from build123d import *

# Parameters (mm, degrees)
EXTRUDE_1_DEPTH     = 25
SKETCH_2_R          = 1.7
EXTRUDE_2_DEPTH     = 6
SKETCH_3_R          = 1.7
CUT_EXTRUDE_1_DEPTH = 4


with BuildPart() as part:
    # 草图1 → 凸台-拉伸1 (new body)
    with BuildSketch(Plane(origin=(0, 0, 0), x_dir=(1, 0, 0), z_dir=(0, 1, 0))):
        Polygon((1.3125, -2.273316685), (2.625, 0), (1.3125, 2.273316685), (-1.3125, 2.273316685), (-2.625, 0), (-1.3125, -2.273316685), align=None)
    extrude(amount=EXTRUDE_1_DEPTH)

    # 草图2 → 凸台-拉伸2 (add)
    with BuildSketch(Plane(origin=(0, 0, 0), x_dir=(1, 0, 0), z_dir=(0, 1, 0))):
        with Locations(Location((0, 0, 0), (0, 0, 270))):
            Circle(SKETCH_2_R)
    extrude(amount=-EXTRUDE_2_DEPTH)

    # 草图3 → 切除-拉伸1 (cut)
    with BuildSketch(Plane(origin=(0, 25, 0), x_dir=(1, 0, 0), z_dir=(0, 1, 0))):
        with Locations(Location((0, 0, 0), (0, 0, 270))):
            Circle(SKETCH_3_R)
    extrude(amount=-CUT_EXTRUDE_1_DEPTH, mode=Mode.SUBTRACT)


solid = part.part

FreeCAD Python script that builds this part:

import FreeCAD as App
import Part
import Sketcher
from FreeCAD import Vector
Q = App.Units.Quantity


def add_polygon(sketch, points):
    """Adds a closed chain of lines whose ends are joined by coincident constraints."""
    first, n = sketch.GeometryCount, len(points)
    for a, b in zip(points, points[1:] + points[:1]):
        sketch.addGeometry(Part.LineSegment(App.Vector(*a, 0), App.Vector(*b, 0)), False)
    for i in range(n):
        sketch.addConstraint(Sketcher.Constraint("Coincident", first + i, 2, first + (i + 1) % n, 1))

doc = App.newDocument("Part")
body = doc.addObject("PartDesign::Body", "Body")

# Sketch on XZ plane
sketch1 = body.newObject("Sketcher::SketchObject", "Sketch")
sketch1.AttachmentSupport = (doc.getObject("XZ_Plane"), [""])
sketch1.MapMode = "FlatFace"
add_polygon(sketch1, [(1.3125, 2.273317), (2.625, 0), (1.3125, -2.273317), (-1.3125, -2.273317), (-2.625, 0), (-1.3125, 2.273317)])  # lines 0-5
sketch1.addConstraint([
    Sketcher.Constraint("Horizontal", 2),
    Sketcher.Constraint("Horizontal", 5),
    Sketcher.Constraint("Symmetric", 0, 2, 3, 2, -1, 1),
    Sketcher.Constraint("Symmetric", 1, 2, 4, 2, -1, 1),
    Sketcher.Constraint("PointOnObject", 0, 2, -1),
    Sketcher.Constraint("Parallel", 0, 3),
    Sketcher.Constraint("Vertical", 2, 2, 4, 2),
    Sketcher.Constraint("Angle", 0, Q("-60 deg")),
    Sketcher.Constraint("DistanceX", 2, 2, 2, 1, Q("2.625 mm")),
    Sketcher.Constraint("DistanceX", 3, 2, 0, 2, Q("5.25 mm")),
])
pad1 = body.newObject("PartDesign::Pad", "Pad")
pad1.Profile = sketch1
pad1.Length = 25
pad1.Reversed = True

# Sketch on XZ plane
sketch2 = body.newObject("Sketcher::SketchObject", "Sketch001")
sketch2.AttachmentSupport = (doc.getObject("XZ_Plane"), [""])
sketch2.MapMode = "FlatFace"
sketch2.addGeometry(Part.Circle(Vector(0, 0, 0), Vector(0, 0, 1), 1.7), False)
sketch2.addConstraint([
    Sketcher.Constraint("Coincident", 0, 3, -1, 1),
    Sketcher.Constraint("Diameter", 0, Q("3.4 mm")),
])
pad2 = body.newObject("PartDesign::Pad", "Pad001")
pad2.Profile = sketch2
pad2.Length = 6

# Sketch on XZ plane
sketch3 = body.newObject("Sketcher::SketchObject", "Sketch002")
sketch3.AttachmentSupport = (doc.getObject("XZ_Plane"), [""])
sketch3.MapMode = "FlatFace"
sketch3.AttachmentOffset = App.Placement(Vector(0, 0, -25), App.Rotation())
sketch3.addGeometry(Part.Circle(Vector(0, 0, 0), Vector(0, 0, 1), 1.7), False)
sketch3.addConstraint([
    Sketcher.Constraint("Coincident", 0, 3, -1, 1),
    Sketcher.Constraint("Diameter", 0, Q("3.4 mm")),
])
pocket1 = body.newObject("PartDesign::Pocket", "Pocket")
pocket1.Profile = sketch3
pocket1.Length = 4
pocket1.Reversed = True

doc.recompute()
